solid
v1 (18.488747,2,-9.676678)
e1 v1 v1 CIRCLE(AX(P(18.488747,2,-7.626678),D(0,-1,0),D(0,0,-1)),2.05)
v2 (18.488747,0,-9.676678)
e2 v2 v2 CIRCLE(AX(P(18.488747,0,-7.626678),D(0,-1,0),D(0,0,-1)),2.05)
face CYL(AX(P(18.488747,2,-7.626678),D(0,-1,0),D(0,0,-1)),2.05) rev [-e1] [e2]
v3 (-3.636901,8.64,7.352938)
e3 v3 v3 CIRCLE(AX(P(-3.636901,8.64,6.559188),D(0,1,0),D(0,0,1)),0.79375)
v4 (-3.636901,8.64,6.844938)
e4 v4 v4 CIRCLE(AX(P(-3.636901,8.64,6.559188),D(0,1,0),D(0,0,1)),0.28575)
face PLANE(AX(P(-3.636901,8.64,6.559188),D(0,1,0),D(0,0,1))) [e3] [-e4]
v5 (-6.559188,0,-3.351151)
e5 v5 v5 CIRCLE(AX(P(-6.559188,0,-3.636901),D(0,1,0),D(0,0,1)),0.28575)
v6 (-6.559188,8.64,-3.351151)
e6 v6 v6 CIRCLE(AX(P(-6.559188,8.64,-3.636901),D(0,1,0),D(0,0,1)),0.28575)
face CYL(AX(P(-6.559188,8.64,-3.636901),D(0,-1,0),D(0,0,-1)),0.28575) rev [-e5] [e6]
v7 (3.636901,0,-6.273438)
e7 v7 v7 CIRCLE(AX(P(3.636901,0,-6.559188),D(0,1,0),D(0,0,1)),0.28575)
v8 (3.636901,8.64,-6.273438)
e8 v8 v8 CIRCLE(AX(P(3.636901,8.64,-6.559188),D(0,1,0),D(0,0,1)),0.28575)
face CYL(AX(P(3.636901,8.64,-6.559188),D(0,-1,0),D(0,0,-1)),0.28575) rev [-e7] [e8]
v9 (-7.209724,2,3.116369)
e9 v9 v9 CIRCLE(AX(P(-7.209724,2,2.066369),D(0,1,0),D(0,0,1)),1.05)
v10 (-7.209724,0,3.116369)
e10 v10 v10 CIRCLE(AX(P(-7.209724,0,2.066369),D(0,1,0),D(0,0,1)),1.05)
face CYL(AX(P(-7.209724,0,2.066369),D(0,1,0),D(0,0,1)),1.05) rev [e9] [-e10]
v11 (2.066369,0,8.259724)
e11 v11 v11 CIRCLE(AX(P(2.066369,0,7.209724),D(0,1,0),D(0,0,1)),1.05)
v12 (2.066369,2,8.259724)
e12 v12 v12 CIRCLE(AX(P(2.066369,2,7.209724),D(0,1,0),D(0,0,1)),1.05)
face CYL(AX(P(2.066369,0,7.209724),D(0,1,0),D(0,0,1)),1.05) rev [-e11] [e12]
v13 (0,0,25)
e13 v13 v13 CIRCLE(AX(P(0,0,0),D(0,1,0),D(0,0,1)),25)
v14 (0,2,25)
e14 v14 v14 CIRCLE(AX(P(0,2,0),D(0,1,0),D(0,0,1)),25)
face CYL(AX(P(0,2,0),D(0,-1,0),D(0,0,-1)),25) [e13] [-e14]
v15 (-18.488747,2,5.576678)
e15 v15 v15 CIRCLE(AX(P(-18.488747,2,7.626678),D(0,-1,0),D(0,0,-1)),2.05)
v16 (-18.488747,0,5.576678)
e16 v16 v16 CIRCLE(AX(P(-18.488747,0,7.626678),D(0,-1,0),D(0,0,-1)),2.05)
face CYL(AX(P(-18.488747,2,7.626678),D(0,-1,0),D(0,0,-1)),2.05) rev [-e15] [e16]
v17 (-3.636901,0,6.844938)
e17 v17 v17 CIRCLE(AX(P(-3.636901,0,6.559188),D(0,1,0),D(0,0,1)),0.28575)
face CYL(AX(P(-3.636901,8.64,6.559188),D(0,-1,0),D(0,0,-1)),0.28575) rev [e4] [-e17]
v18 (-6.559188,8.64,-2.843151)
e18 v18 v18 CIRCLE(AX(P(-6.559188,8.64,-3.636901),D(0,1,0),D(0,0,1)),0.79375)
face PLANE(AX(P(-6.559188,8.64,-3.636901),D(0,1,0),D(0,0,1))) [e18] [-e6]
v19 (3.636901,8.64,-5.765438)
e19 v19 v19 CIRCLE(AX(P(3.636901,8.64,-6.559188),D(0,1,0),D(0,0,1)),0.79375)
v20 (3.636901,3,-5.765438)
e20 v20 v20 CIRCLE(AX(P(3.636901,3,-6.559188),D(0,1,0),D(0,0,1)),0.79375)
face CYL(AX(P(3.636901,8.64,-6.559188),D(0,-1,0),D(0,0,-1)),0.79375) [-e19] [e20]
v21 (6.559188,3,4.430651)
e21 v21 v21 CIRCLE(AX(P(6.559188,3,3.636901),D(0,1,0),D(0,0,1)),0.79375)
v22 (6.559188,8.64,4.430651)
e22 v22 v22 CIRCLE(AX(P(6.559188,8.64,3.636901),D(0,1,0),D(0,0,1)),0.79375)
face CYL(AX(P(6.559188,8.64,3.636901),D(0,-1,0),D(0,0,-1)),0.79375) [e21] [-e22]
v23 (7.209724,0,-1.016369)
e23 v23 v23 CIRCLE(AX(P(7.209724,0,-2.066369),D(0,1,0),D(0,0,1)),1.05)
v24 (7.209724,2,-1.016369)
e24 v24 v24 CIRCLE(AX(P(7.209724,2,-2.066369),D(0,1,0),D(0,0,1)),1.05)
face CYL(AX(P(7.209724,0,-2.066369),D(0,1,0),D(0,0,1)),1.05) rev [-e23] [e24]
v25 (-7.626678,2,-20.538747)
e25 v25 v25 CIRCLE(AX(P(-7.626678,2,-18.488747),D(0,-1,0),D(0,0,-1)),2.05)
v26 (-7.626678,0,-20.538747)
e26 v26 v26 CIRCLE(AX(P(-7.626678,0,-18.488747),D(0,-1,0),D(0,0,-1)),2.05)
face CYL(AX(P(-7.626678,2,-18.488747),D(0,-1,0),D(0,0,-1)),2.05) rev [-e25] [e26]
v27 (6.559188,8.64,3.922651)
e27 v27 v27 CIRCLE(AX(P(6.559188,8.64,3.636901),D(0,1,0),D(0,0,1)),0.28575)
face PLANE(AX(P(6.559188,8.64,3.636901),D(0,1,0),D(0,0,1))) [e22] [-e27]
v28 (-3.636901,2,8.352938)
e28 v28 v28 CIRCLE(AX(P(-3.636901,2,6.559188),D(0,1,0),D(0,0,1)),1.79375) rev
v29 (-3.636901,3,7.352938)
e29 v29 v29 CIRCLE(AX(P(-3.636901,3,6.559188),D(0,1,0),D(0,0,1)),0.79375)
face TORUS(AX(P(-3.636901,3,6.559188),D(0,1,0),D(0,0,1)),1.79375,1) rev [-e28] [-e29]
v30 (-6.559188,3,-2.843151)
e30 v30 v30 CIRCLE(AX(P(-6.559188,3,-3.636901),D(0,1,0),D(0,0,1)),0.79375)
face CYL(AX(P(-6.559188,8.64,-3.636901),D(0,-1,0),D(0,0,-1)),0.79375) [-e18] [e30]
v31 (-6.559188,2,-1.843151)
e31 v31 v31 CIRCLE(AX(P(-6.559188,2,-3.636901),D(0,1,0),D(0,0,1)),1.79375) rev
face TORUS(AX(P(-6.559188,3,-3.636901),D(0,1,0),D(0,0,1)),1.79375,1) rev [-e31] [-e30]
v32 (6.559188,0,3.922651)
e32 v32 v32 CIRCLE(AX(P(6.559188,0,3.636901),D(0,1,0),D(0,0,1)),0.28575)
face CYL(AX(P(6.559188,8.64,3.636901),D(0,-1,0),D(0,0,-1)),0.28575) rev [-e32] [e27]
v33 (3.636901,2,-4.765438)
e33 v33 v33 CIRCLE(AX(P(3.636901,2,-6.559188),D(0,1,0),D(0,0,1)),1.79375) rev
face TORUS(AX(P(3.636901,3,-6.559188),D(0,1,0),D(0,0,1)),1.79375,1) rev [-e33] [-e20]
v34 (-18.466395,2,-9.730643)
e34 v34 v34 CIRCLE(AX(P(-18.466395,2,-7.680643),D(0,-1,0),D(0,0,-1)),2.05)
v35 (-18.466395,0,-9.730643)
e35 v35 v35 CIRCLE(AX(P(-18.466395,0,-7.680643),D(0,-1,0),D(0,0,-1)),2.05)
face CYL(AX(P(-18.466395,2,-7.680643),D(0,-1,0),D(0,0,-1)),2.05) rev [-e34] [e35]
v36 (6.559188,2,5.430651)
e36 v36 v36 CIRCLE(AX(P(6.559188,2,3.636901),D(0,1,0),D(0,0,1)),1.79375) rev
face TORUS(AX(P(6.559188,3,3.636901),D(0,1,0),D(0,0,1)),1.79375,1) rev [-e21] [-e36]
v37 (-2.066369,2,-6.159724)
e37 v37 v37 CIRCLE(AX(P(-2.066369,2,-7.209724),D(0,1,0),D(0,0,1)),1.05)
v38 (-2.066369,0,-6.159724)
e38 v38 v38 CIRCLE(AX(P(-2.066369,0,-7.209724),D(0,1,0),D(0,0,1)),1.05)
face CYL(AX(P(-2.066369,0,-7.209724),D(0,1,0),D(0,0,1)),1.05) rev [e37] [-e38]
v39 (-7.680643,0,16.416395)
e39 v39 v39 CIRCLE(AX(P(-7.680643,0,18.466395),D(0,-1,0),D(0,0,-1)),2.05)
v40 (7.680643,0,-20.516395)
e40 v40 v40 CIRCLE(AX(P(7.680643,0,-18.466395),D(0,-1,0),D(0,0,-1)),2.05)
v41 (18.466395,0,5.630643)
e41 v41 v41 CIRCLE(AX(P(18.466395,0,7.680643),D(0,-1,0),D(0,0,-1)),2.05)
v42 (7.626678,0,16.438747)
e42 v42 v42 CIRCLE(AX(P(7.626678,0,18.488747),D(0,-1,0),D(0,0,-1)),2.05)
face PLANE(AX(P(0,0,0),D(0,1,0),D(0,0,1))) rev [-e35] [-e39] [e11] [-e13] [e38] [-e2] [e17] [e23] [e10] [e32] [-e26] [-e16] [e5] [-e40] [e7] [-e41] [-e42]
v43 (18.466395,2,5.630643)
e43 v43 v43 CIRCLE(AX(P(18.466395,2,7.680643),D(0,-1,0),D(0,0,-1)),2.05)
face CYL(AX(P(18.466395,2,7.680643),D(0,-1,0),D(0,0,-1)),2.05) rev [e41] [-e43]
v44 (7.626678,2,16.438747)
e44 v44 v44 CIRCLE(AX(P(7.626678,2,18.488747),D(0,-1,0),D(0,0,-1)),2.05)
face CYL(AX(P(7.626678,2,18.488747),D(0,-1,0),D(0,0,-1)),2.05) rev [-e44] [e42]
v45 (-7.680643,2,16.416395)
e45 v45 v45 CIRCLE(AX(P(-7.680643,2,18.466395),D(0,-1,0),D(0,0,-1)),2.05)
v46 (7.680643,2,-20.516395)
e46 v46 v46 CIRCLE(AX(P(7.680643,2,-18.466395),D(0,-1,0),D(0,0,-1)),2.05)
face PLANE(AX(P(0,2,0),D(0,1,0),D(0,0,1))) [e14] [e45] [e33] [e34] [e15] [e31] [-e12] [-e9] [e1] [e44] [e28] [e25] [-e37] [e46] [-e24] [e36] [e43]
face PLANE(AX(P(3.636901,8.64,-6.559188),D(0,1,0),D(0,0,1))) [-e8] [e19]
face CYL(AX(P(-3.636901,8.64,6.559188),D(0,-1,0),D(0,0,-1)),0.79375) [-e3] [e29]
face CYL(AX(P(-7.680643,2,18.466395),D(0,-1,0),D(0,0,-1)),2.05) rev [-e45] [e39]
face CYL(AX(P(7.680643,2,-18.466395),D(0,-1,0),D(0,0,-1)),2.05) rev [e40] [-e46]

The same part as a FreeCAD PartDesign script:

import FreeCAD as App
import Part
import Sketcher
Q = App.Units.Quantity


def edges_at(feature, points):
    """Names of the edges that pass closest to the given points."""
    edges = feature.Shape.Edges
    near = lambda p: min(range(len(edges)), key=lambda i: edges[i].distToShape(Part.Vertex(*p))[0])
    return sorted({f"Edge{near(p) + 1}" for p in points})

doc = App.newDocument("Part")
body = doc.addObject("PartDesign::Body", "Body")

sketch1 = body.newObject("Sketcher::SketchObject", "Sketch")
sketch1.AttachmentSupport = (doc.getObject("XZ_Plane"), [""])
sketch1.MapMode = "FlatFace"
sketch1.addGeometry(Part.Circle(App.Vector(0, 0, 0), App.Vector(0, 0, 1), 25), False)
sketch1.addConstraint([
    Sketcher.Constraint("Coincident", 0, 3, -1, 1),
    Sketcher.Constraint("Diameter", 0, Q("50 mm")),
])
pad1 = body.newObject("PartDesign::Pad", "Pad")
pad1.Profile = sketch1
pad1.Length = 2
pad1.Reversed = True

sketch2 = body.newObject("Sketcher::SketchObject", "Sketch001")
sketch2.AttachmentSupport = (doc.getObject("XZ_Plane"), [""])
sketch2.MapMode = "FlatFace"
sketch2.AttachmentOffset = App.Placement(App.Vector(0, 0, -2), App.Rotation())
sketch2.addGeometry([
    Part.Circle(App.Vector(-2.1, -7.2, 0), App.Vector(0, 0, 1), 1.1),
    Part.Circle(App.Vector(7.2, -2.1, 0), App.Vector(0, 0, 1), 1.1),
    Part.Circle(App.Vector(2.1, 7.2, 0), App.Vector(0, 0, 1), 1.1),
    Part.Circle(App.Vector(-7.2, 2.1, 0), App.Vector(0, 0, 1), 1.1),
    Part.Circle(App.Vector(-3.6, 6.6, 0), App.Vector(0, 0, 1), 0.8),
    Part.Circle(App.Vector(-6.6, -3.6, 0), App.Vector(0, 0, 1), 0.8),
    Part.Circle(App.Vector(3.6, -6.6, 0), App.Vector(0, 0, 1), 0.8),
    Part.Circle(App.Vector(6.6, 3.6, 0), App.Vector(0, 0, 1), 0.8),
], False)
sketch2.addConstraint([
    Sketcher.Constraint("Equal", 0, 1),
    Sketcher.Constraint("Equal", 1, 2),
    Sketcher.Constraint("Equal", 2, 3),
    Sketcher.Constraint("Equal", 4, 5),
    Sketcher.Constraint("Equal", 5, 6),
    Sketcher.Constraint("Equal", 6, 7),
    Sketcher.Constraint("Symmetric", 0, 3, 2, 3, -1, 1),
    Sketcher.Constraint("Symmetric", 1, 3, 3, 3, -1, 1),
    Sketcher.Constraint("Symmetric", 4, 3, 6, 3, -1, 1),
    Sketcher.Constraint("Symmetric", 5, 3, 7, 3, -1, 1),
    Sketcher.Constraint("Diameter", 0, Q("2.1 mm")),
    Sketcher.Constraint("Diameter", 4, Q("1.5875 mm")),
    Sketcher.Constraint("DistanceX", 4, 3, -1, 1, Q("3.636901 mm")),
    Sketcher.Constraint("DistanceY", 5, 3, -1, 1, Q("3.636901 mm")),
    Sketcher.Constraint("DistanceX", 0, 3, -1, 1, Q("2.066369 mm")),
    Sketcher.Constraint("DistanceY", 1, 3, -1, 1, Q("2.066369 mm")),
    Sketcher.Constraint("DistanceY", -1, 1, 4, 3, Q("6.559188 mm")),
    Sketcher.Constraint("DistanceX", 5, 3, -1, 1, Q("6.559188 mm")),
    Sketcher.Constraint("DistanceY", 0, 3, -1, 1, Q("7.209724 mm")),
    Sketcher.Constraint("DistanceX", -1, 1, 1, 3, Q("7.209724 mm")),
])
pocket1 = body.newObject("PartDesign::Pocket", "Pocket")
pocket1.Profile = sketch2
pocket1.Type = "ThroughAll"
pocket1.Reversed = True

sketch3 = body.newObject("Sketcher::SketchObject", "Sketch002")
sketch3.AttachmentSupport = (doc.getObject("XZ_Plane"), [""])
sketch3.MapMode = "FlatFace"
sketch3.addGeometry([
    Part.Circle(App.Vector(-18.5, 7.6, 0), App.Vector(0, 0, 1), 2),
    Part.Circle(App.Vector(-7.7, 18.5, 0), App.Vector(0, 0, 1), 2),
    Part.Circle(App.Vector(7.6, 18.5, 0), App.Vector(0, 0, 1), 2),
    Part.Circle(App.Vector(18.5, 7.7, 0), App.Vector(0, 0, 1), 2),
    Part.Circle(App.Vector(18.5, -7.6, 0), App.Vector(0, 0, 1), 2),
    Part.Circle(App.Vector(7.7, -18.5, 0), App.Vector(0, 0, 1), 2),
    Part.Circle(App.Vector(-7.6, -18.5, 0), App.Vector(0, 0, 1), 2),
    Part.Circle(App.Vector(-18.5, -7.7, 0), App.Vector(0, 0, 1), 2),
], False)
sketch3.addConstraint([
    Sketcher.Constraint("Equal", 0, 1),
    Sketcher.Constraint("Equal", 1, 2),
    Sketcher.Constraint("Equal", 2, 3),
    Sketcher.Constraint("Equal", 3, 4),
    Sketcher.Constraint("Equal", 4, 5),
    Sketcher.Constraint("Equal", 5, 6),
    Sketcher.Constraint("Equal", 6, 7),
    Sketcher.Constraint("Symmetric", 0, 3, 4, 3, -1, 1),
    Sketcher.Constraint("Symmetric", 1, 3, 5, 3, -1, 1),
    Sketcher.Constraint("Symmetric", 2, 3, 6, 3, -1, 1),
    Sketcher.Constraint("Symmetric", 3, 3, 7, 3, -1, 1),
    Sketcher.Constraint("Diameter", 0, Q("4.1 mm")),
    Sketcher.Constraint("DistanceY", -1, 1, 0, 3, Q("7.626678 mm")),
    Sketcher.Constraint("DistanceX", -1, 1, 2, 3, Q("7.626678 mm")),
    Sketcher.Constraint("DistanceX", 1, 3, 2, 3, Q("15.307321 mm")),
    Sketcher.Constraint("DistanceY", 0, 3, 2, 3, Q("10.862069 mm")),
    Sketcher.Constraint("DistanceX", 0, 3, 3, 3, Q("36.955142 mm")),
    Sketcher.Constraint("DistanceY", 4, 3, 3, 3, Q("15.307321 mm")),
    Sketcher.Constraint("DistanceX", 2, 3, 4, 3, Q("10.862069 mm")),
    Sketcher.Constraint("DistanceY", 5, 3, 2, 3, Q("36.955142 mm")),
])
pocket2 = body.newObject("PartDesign::Pocket", "Pocket001")
pocket2.Profile = sketch3
pocket2.Type = "ThroughAll"

sketch4 = body.newObject("Sketcher::SketchObject", "Sketch003")
sketch4.AttachmentSupport = (doc.getObject("XZ_Plane"), [""])
sketch4.MapMode = "FlatFace"
sketch4.addGeometry([
    Part.Circle(App.Vector(-3.64, 6.56, 0), App.Vector(0, 0, 1), 0.79),
    Part.Circle(App.Vector(-3.64, 6.56, 0), App.Vector(0, 0, 1), 0.29),
    Part.Circle(App.Vector(6.56, 3.64, 0), App.Vector(0, 0, 1), 0.79),
    Part.Circle(App.Vector(6.56, 3.64, 0), App.Vector(0, 0, 1), 0.29),
    Part.Circle(App.Vector(-6.56, -3.64, 0), App.Vector(0, 0, 1), 0.79),
    Part.Circle(App.Vector(-6.56, -3.64, 0), App.Vector(0, 0, 1), 0.29),
    Part.Circle(App.Vector(3.64, -6.56, 0), App.Vector(0, 0, 1), 0.79),
    Part.Circle(App.Vector(3.64, -6.56, 0), App.Vector(0, 0, 1), 0.29),
], False)
sketch4.addConstraint([
    Sketcher.Constraint("Coincident", 1, 3, 0, 3),
    Sketcher.Constraint("Coincident", 3, 3, 2, 3),
    Sketcher.Constraint("Coincident", 5, 3, 4, 3),
    Sketcher.Constraint("Coincident", 7, 3, 6, 3),
    Sketcher.Constraint("Equal", 0, 2),
    Sketcher.Constraint("Equal", 1, 3),
    Sketcher.Constraint("Equal", 2, 4),
    Sketcher.Constraint("Equal", 3, 5),
    Sketcher.Constraint("Equal", 4, 6),
    Sketcher.Constraint("Equal", 5, 7),
    Sketcher.Constraint("Symmetric", 2, 3, 4, 3, -1, 1),
    Sketcher.Constraint("Symmetric", 0, 3, 6, 3, -1, 1),
    Sketcher.Constraint("Diameter", 0, Q("1.5875 mm")),
    Sketcher.Constraint("Diameter", 1, Q("0.5715 mm")),
    Sketcher.Constraint("DistanceX", 0, 3, -1, 1, Q("3.636901 mm")),
    Sketcher.Constraint("DistanceY", -1, 1, 2, 3, Q("3.636901 mm")),
    Sketcher.Constraint("DistanceY", -1, 1, 0, 3, Q("6.559188 mm")),
    Sketcher.Constraint("DistanceX", -1, 1, 2, 3, Q("6.559188 mm")),
])
pad2 = body.newObject("PartDesign::Pad", "Pad001")
pad2.Profile = sketch4
pad2.Length = 8.64
pad2.Reversed = True
doc.recompute()

fillet = body.newObject("PartDesign::Fillet", "Fillet")
fillet.Base = (pad2, edges_at(pad2, [(-7.353, 2, -3.637)]))
fillet.Radius = 1
doc.recompute()

fillet2 = body.newObject("PartDesign::Fillet", "Fillet001")
fillet2.Base = (fillet, edges_at(fillet, [(-4.431, 2, 6.559)]))
fillet2.Radius = 1
doc.recompute()

fillet3 = body.newObject("PartDesign::Fillet", "Fillet002")
fillet3.Base = (fillet2, edges_at(fillet2, [(5.765, 2, 3.637)]))
fillet3.Radius = 1
doc.recompute()

fillet4 = body.newObject("PartDesign::Fillet", "Fillet003")
fillet4.Base = (fillet3, edges_at(fillet3, [(2.843, 2, -6.559)]))
fillet4.Radius = 1

doc.recompute()
